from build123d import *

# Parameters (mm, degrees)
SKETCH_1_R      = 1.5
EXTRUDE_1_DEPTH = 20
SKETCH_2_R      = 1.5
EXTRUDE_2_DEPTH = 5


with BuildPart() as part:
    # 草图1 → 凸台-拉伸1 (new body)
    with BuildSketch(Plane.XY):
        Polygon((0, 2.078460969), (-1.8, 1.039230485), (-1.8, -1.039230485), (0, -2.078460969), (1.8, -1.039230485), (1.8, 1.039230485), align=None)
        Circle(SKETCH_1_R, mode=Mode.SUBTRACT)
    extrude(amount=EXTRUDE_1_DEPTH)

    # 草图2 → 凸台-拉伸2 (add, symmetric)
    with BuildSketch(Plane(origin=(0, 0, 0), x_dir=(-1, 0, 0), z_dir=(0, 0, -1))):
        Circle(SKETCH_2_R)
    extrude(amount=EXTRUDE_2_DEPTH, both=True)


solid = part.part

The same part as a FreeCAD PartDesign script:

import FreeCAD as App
import Part
import Sketcher
Q = App.Units.Quantity

doc = App.newDocument("Part")
params = doc.addObject("Spreadsheet::Sheet", "Params")
for row, (alias, value) in enumerate([
    ("sketch1_diameter", "3 mm"),
    ("pad1_length", "20 mm"),
    ("sketch2_diameter", "3 mm"),
    ("pad2_length", "10 mm"),
], start=1):
    params.set(f"A{row}", alias)
    params.set(f"B{row}", "=" + value)
    params.setAlias(f"B{row}", alias)

body = doc.addObject("PartDesign::Body", "Body")

sketch1 = body.newObject("Sketcher::SketchObject", "Sketch")
sketch1.AttachmentSupport = (doc.getObject("XY_Plane"), [""])
sketch1.MapMode = "FlatFace"
sketch1.addGeometry(Part.LineSegment(App.Vector(0, 2.1, 0), App.Vector(-1.8, 1, 0)), False)
sketch1.addGeometry(Part.LineSegment(App.Vector(-1.8, 1, 0), App.Vector(-1.8, -1, 0)), False)
sketch1.addGeometry(Part.LineSegment(App.Vector(-1.8, -1, 0), App.Vector(0, -2.1, 0)), False)
sketch1.addGeometry(Part.LineSegment(App.Vector(0, -2.1, 0), App.Vector(1.8, -1, 0)), False)
sketch1.addGeometry(Part.LineSegment(App.Vector(1.8, -1, 0), App.Vector(1.8, 1, 0)), False)
sketch1.addGeometry(Part.LineSegment(App.Vector(1.8, 1, 0), App.Vector(0, 2.1, 0)), False)
sketch1.addGeometry(Part.Circle(App.Vector(0, 0, 0), App.Vector(0, 0, 1), 1.5), False)
sketch1.addConstraint(Sketcher.Constraint("Coincident", 0, 2, 1, 1))
sketch1.addConstraint(Sketcher.Constraint("Coincident", 1, 2, 2, 1))
sketch1.addConstraint(Sketcher.Constraint("Coincident", 2, 2, 3, 1))
sketch1.addConstraint(Sketcher.Constraint("Coincident", 3, 2, 4, 1))
sketch1.addConstraint(Sketcher.Constraint("Coincident", 4, 2, 5, 1))
sketch1.addConstraint(Sketcher.Constraint("Coincident", 5, 2, 0, 1))
sketch1.addConstraint(Sketcher.Constraint("Vertical", 1))
sketch1.addConstraint(Sketcher.Constraint("Vertical", 4))
sketch1.addConstraint(Sketcher.Constraint("Coincident", 6, 3, -1, 1))
sketch1.addConstraint(Sketcher.Constraint("Symmetric", 0, 2, 3, 2, -1, 1))
sketch1.addConstraint(Sketcher.Constraint("Symmetric", 2, 2, 5, 2, -1, 1))
sketch1.addConstraint(Sketcher.Constraint("PointOnObject", 2, 2, -2))
sketch1.addConstraint(Sketcher.Constraint("Parallel", 2, 5))
sketch1.addConstraint(Sketcher.Constraint("Horizontal", 1, 2, 3, 2))
sketch1.addConstraint(Sketcher.Constraint("Diameter", 6, Q("3 mm")))
sketch1.addConstraint(Sketcher.Constraint("Angle", 0, Q("-150 deg")))
sketch1.addConstraint(Sketcher.Constraint("DistanceX", 0, 2, -1, 1, Q("1.8 mm")))
sketch1.addConstraint(Sketcher.Constraint("DistanceY", 1, 2, 1, 1, Q("2.078461 mm")))
sketch1.setExpression("Constraints[14]", "Params.sketch1_diameter")
pad1 = body.newObject("PartDesign::Pad", "Pad")
pad1.Profile = sketch1
pad1.setExpression("Length", "Params.pad1_length")

sketch2 = body.newObject("Sketcher::SketchObject", "Sketch001")
sketch2.AttachmentSupport = (doc.getObject("XY_Plane"), [""])
sketch2.MapMode = "FlatFace"
sketch2.addGeometry(Part.Circle(App.Vector(0, 0, 0), App.Vector(0, 0, 1), 1.5), False)
sketch2.addConstraint(Sketcher.Constraint("Coincident", 0, 3, -1, 1))
sketch2.addConstraint(Sketcher.Constraint("Diameter", 0, Q("3 mm")))
sketch2.setExpression("Constraints[1]", "Params.sketch2_diameter")
pad2 = body.newObject("PartDesign::Pad", "Pad001")
pad2.Profile = sketch2
pad2.setExpression("Length", "Params.pad2_length")
pad2.Midplane = True

doc.recompute()
